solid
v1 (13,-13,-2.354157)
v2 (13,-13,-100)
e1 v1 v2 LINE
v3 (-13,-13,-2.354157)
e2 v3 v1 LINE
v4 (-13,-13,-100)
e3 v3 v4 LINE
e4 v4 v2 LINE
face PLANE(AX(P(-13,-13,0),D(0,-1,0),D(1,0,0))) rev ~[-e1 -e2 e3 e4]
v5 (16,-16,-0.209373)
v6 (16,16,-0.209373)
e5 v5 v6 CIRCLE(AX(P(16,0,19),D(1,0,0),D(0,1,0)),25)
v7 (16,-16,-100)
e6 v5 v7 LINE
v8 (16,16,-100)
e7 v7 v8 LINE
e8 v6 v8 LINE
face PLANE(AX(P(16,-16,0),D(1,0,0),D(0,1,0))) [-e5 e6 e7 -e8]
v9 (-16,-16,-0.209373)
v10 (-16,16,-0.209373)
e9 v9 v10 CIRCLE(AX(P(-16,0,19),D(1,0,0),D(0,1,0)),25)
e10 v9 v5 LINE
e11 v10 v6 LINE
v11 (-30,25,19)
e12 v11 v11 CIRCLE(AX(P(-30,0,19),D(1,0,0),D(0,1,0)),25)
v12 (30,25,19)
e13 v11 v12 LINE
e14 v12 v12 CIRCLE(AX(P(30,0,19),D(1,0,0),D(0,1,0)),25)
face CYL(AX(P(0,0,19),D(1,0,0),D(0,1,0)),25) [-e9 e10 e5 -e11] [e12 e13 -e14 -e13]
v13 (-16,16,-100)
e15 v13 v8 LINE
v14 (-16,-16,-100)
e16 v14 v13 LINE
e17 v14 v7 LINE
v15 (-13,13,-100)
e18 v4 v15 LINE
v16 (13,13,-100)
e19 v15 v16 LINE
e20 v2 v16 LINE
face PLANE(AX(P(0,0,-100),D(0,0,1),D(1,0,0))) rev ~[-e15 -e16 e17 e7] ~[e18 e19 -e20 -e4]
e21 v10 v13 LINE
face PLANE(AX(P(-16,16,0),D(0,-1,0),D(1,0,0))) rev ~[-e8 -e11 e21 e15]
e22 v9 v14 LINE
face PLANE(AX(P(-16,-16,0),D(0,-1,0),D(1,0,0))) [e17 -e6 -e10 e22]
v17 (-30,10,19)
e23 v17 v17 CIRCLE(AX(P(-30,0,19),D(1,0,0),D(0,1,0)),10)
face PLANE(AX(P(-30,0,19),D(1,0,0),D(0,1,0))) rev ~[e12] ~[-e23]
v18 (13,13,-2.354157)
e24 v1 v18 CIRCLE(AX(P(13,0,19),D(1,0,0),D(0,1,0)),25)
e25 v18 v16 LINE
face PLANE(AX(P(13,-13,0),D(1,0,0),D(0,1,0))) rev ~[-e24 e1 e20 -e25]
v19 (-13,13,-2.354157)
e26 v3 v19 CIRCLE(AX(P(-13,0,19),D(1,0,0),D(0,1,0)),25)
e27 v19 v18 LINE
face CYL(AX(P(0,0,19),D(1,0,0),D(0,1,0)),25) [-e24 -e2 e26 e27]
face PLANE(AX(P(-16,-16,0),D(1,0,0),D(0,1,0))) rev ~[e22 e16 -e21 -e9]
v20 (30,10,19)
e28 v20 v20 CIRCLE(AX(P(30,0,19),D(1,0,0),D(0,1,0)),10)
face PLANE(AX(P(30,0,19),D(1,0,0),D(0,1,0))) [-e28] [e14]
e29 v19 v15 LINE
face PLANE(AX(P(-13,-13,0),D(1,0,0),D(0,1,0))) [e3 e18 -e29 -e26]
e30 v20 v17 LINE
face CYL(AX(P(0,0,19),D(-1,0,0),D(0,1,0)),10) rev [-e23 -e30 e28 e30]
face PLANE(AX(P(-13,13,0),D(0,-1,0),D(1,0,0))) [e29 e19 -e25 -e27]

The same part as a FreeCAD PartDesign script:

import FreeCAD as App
import Part
import Sketcher
Q = App.Units.Quantity


def add_polygon(sketch, points):
    """Adds a closed chain of lines whose ends are joined by coincident constraints."""
    first, n = sketch.GeometryCount, len(points)
    for a, b in zip(points, points[1:] + points[:1]):
        sketch.addGeometry(Part.LineSegment(App.Vector(*a, 0), App.Vector(*b, 0)), False)
    for i in range(n):
        sketch.addConstraint(Sketcher.Constraint("Coincident", first + i, 2, first + (i + 1) % n, 1))

doc = App.newDocument("Part")
params = doc.addObject("Spreadsheet::Sheet", "Params")
for row, (alias, value) in enumerate([
    ("sketch1_width", "32 mm"),
    ("sketch1_width2", "26 mm"),
    ("pad1_length", "100 mm"),
    ("sketch2_diameter", "50 mm"),
    ("sketch2_diameter2", "20 mm"),
    ("pad2_length", "60 mm"),
], start=1):
    params.set(f"A{row}", alias)
    params.set(f"B{row}", "=" + value)
    params.setAlias(f"B{row}", alias)

body = doc.addObject("PartDesign::Body", "Body")

sketch1 = body.newObject("Sketcher::SketchObject", "Sketch")
sketch1.AttachmentSupport = (doc.getObject("XY_Plane"), [""])
sketch1.MapMode = "FlatFace"
add_polygon(sketch1, [(-16, 16), (-16, -16), (16, -16), (16, 16)])
add_polygon(sketch1, [(13, -13), (-13, -13), (-13, 13), (13, 13)])
sketch1.addConstraint([
    Sketcher.Constraint("Vertical", 0),
    Sketcher.Constraint("Horizontal", 1),
    Sketcher.Constraint("Vertical", 2),
    Sketcher.Constraint("Horizontal", 3),
    Sketcher.Constraint("Horizontal", 4),
    Sketcher.Constraint("Vertical", 5),
    Sketcher.Constraint("Horizontal", 6),
    Sketcher.Constraint("Vertical", 7),
    Sketcher.Constraint("Symmetric", 0, 2, 2, 2, -1, 1),
    Sketcher.Constraint("Symmetric", 4, 2, 6, 2, -1, 1),
    Sketcher.Constraint("Equal", 3, 0),
    Sketcher.Constraint("Equal", 6, 5),
    Sketcher.Constraint("DistanceX", 1, 1, 1, 2, Q("32 mm")),
    Sketcher.Constraint("DistanceX", 4, 2, 4, 1, Q("26 mm")),
])
sketch1.setExpression("Constraints[20]", "Params.sketch1_width")
sketch1.setExpression("Constraints[21]", "Params.sketch1_width2")
pad1 = body.newObject("PartDesign::Pad", "Pad")
pad1.Profile = sketch1
pad1.setExpression("Length", "Params.pad1_length")
pad1.Reversed = True

sketch2 = body.newObject("Sketcher::SketchObject", "Sketch001")
sketch2.AttachmentSupport = (doc.getObject("YZ_Plane"), [""])
sketch2.MapMode = "FlatFace"
sketch2.addGeometry([
    Part.Circle(App.Vector(0, 19, 0), App.Vector(0, 0, 1), 25),
    Part.Circle(App.Vector(0, 19, 0), App.Vector(0, 0, 1), 10),
], False)
sketch2.addConstraint([
    Sketcher.Constraint("Coincident", 1, 3, 0, 3),
    Sketcher.Constraint("PointOnObject", 0, 3, -2),
    Sketcher.Constraint("Diameter", 0, Q("50 mm")),
    Sketcher.Constraint("Diameter", 1, Q("20 mm")),
    Sketcher.Constraint("DistanceY", -1, 1, 0, 3, Q("19 mm")),
])
sketch2.setExpression("Constraints[2]", "Params.sketch2_diameter")
sketch2.setExpression("Constraints[3]", "Params.sketch2_diameter2")
pad2 = body.newObject("PartDesign::Pad", "Pad001")
pad2.Profile = sketch2
pad2.setExpression("Length", "Params.pad2_length")
pad2.Midplane = True

doc.recompute()
